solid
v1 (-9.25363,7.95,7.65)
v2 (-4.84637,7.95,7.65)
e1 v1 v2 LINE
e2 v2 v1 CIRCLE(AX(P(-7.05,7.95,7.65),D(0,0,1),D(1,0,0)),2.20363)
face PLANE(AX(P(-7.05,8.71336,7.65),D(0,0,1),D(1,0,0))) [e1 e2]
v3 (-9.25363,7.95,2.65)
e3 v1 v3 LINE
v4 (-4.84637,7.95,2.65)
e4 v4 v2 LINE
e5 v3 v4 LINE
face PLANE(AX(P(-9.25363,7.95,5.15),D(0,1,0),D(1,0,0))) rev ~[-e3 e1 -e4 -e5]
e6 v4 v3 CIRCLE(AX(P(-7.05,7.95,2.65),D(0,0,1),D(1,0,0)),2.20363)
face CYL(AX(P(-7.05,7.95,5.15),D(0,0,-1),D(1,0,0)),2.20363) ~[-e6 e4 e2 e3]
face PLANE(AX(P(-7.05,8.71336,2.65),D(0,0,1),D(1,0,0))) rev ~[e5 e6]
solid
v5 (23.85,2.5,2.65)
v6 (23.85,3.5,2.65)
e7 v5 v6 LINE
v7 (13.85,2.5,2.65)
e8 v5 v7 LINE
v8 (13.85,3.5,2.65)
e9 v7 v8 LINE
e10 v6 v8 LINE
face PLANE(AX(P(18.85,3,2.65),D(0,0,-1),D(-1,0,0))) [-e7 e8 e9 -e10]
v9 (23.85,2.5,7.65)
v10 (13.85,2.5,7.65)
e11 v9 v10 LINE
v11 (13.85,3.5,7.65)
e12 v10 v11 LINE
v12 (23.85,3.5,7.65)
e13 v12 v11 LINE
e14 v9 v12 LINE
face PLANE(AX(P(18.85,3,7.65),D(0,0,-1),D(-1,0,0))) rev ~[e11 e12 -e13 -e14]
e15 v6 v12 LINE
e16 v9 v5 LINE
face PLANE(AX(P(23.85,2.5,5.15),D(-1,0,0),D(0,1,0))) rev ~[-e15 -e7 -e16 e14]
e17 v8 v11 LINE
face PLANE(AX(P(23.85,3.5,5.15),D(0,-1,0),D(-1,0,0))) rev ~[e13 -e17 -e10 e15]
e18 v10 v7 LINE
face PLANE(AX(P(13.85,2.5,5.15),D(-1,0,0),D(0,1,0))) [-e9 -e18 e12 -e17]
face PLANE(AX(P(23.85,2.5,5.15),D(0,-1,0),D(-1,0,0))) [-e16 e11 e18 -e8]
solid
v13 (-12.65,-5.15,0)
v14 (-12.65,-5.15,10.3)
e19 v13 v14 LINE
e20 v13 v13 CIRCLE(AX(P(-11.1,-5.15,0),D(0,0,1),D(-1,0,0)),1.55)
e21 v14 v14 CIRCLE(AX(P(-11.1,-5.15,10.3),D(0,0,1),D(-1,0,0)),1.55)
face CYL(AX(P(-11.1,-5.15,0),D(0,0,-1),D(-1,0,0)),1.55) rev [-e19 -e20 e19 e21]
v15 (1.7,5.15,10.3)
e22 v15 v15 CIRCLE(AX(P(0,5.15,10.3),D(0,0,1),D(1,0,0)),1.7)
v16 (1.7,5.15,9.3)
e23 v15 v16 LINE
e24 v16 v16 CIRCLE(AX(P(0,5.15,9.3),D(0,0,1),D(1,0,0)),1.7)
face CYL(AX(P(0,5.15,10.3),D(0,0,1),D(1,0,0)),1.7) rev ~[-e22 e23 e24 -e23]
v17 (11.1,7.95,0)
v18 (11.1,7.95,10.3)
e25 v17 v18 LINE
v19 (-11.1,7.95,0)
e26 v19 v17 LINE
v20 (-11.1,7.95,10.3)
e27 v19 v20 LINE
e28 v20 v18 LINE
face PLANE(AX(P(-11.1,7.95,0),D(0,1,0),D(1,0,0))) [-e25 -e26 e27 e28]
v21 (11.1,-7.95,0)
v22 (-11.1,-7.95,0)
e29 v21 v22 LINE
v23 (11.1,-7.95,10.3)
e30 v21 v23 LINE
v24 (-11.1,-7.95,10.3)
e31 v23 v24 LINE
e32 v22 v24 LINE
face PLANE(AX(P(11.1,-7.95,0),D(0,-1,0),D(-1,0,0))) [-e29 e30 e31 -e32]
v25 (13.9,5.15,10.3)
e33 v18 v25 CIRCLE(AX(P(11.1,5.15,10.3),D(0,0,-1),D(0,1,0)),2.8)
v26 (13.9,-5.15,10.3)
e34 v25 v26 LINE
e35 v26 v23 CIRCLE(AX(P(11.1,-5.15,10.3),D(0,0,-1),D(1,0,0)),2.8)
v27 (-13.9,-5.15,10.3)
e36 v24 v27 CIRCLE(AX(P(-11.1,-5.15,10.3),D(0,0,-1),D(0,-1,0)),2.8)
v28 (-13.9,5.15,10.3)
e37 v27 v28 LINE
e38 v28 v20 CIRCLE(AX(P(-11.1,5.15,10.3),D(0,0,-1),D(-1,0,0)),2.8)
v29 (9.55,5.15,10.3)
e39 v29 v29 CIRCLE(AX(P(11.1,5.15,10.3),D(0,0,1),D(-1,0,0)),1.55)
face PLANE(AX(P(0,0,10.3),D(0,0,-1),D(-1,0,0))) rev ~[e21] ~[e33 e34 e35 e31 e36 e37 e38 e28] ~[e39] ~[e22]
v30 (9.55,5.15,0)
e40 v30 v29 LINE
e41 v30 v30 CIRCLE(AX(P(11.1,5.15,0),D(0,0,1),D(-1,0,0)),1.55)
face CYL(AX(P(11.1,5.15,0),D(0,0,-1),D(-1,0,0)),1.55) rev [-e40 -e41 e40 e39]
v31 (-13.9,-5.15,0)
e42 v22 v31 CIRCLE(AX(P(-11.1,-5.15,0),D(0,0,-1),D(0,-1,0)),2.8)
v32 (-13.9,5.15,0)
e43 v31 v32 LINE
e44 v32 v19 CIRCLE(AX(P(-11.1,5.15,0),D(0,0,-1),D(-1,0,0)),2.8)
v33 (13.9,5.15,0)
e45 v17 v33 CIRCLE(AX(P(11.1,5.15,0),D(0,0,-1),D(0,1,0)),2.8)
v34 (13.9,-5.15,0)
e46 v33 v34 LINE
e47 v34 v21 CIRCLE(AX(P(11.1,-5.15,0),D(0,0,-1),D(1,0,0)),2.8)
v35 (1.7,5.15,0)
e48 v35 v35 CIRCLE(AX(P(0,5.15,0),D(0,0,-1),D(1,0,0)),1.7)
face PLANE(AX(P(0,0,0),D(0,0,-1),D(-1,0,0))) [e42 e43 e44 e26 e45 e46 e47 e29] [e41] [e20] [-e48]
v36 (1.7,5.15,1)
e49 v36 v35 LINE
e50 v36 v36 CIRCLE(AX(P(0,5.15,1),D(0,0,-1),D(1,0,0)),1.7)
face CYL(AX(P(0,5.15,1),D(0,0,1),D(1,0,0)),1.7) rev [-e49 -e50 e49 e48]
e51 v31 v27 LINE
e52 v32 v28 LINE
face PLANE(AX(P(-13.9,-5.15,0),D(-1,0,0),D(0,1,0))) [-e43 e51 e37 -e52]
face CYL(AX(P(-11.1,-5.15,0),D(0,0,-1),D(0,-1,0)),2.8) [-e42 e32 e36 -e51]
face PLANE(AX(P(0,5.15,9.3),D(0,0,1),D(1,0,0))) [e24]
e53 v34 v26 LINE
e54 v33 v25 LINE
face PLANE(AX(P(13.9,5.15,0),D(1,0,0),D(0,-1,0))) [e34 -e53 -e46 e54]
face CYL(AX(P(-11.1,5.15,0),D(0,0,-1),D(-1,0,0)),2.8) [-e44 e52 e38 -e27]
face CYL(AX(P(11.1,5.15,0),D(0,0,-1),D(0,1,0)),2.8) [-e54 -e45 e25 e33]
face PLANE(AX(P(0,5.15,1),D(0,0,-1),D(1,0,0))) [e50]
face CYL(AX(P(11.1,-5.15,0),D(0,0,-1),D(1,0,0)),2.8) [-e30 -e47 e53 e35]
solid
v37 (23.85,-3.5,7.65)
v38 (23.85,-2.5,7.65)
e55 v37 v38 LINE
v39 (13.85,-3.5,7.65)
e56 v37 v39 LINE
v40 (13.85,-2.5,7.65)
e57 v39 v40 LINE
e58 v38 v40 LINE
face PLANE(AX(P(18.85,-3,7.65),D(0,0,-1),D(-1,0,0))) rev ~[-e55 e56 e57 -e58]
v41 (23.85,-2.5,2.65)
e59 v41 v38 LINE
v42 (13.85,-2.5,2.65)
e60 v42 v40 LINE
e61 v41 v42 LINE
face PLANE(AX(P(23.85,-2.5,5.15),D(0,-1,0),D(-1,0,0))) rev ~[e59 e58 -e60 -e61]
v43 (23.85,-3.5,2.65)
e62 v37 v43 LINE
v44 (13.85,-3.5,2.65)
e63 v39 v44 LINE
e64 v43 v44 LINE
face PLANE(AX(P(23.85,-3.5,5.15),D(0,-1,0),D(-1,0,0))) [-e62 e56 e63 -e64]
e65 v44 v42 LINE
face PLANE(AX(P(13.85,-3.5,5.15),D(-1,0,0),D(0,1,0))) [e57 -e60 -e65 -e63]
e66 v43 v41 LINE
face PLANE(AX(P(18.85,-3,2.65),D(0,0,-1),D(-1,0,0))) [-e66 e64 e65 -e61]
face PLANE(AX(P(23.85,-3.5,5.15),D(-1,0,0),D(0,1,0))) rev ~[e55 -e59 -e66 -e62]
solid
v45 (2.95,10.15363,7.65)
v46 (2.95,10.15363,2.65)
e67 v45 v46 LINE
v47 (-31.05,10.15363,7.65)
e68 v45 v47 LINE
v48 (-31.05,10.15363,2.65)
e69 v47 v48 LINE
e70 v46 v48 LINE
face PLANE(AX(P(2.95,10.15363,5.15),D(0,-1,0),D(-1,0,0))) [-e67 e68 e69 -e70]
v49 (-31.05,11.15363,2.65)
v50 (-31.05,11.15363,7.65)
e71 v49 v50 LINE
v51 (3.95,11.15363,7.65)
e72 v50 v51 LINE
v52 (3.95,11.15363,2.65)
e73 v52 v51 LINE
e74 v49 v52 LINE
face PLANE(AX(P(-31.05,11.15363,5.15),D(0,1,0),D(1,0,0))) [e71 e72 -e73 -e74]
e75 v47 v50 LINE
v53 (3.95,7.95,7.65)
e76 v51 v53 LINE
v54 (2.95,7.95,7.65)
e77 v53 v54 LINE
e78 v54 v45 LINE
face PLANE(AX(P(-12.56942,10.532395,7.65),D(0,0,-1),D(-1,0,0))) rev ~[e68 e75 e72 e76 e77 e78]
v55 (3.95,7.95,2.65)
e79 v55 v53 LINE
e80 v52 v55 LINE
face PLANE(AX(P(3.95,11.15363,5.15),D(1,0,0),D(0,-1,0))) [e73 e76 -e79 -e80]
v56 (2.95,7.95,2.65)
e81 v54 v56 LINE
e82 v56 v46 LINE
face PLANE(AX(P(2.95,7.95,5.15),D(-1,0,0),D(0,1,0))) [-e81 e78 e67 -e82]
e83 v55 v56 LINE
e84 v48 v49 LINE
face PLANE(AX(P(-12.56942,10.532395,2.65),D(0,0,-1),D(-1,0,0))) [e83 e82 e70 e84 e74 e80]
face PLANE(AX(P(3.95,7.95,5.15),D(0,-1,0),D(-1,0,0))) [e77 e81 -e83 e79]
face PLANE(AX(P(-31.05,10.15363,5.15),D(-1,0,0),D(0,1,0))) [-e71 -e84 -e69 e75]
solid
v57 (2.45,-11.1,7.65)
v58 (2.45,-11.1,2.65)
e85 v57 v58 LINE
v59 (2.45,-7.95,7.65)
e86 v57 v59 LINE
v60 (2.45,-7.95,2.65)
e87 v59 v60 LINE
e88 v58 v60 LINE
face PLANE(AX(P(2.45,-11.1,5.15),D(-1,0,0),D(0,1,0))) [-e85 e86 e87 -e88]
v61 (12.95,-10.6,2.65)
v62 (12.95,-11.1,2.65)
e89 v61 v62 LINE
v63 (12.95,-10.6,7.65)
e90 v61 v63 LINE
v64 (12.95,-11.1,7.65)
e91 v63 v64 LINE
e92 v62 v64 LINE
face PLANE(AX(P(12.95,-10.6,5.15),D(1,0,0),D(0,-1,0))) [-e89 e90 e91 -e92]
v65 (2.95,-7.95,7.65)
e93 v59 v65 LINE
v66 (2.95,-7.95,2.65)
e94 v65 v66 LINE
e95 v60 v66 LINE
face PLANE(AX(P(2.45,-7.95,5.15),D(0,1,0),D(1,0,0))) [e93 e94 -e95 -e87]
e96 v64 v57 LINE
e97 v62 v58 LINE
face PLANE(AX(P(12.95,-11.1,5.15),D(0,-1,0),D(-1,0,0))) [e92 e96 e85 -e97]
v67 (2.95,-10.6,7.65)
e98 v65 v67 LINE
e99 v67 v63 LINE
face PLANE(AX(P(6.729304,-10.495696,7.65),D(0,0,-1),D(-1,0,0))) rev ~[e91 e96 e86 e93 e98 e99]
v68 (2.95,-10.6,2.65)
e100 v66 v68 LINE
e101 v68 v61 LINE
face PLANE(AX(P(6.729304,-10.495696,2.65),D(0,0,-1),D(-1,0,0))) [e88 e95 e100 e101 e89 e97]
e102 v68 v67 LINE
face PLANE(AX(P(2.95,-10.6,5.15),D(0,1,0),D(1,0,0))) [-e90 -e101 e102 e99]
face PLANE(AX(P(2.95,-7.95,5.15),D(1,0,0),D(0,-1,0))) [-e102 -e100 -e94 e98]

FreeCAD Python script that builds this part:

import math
import FreeCAD as App
import Part
import Sketcher
from FreeCAD import Vector
Q = App.Units.Quantity


def add_polygon(sketch, points):
    """Adds a closed chain of lines whose ends are joined by coincident constraints."""
    first, n = sketch.GeometryCount, len(points)
    for a, b in zip(points, points[1:] + points[:1]):
        sketch.addGeometry(Part.LineSegment(App.Vector(*a, 0), App.Vector(*b, 0)), False)
    for i in range(n):
        sketch.addConstraint(Sketcher.Constraint("Coincident", first + i, 2, first + (i + 1) % n, 1))

doc = App.newDocument("Part")
body = doc.addObject("PartDesign::Body", "Body")

sketch1 = body.newObject("Sketcher::SketchObject", "Sketch")
sketch1.AttachmentSupport = (doc.getObject("XY_Plane"), [""])
sketch1.MapMode = "FlatFace"
sketch1.addGeometry(Part.LineSegment(Vector(11.1, 7.95, 0), Vector(-11.1, 7.95, 0)), False)
sketch1.addGeometry(Part.ArcOfCircle(Part.Circle(Vector(-11.1, 5.15, 0), Vector(0, 0, 1), 2.8), math.radians(90), math.radians(180)), False)
sketch1.addGeometry(Part.LineSegment(Vector(-13.9, 5.15, 0), Vector(-13.9, -5.15, 0)), False)
sketch1.addGeometry(Part.ArcOfCircle(Part.Circle(Vector(-11.1, -5.15, 0), Vector(0, 0, 1), 2.8), math.radians(-180), math.radians(-90)), False)
sketch1.addGeometry(Part.LineSegment(Vector(-11.1, -7.95, 0), Vector(11.1, -7.95, 0)), False)
sketch1.addGeometry(Part.ArcOfCircle(Part.Circle(Vector(11.1, -5.15, 0), Vector(0, 0, 1), 2.8), math.radians(-90), math.radians(0)), False)
sketch1.addGeometry(Part.LineSegment(Vector(13.9, -5.15, 0), Vector(13.9, 5.15, 0)), False)
sketch1.addGeometry(Part.ArcOfCircle(Part.Circle(Vector(11.1, 5.15, 0), Vector(0, 0, 1), 2.8), math.radians(0), math.radians(90)), False)
sketch1.addGeometry(Part.Circle(Vector(-11.1, -5.15, 0), Vector(0, 0, 1), 1.55), False)
sketch1.addGeometry(Part.Circle(Vector(11.1, 5.15, 0), Vector(0, 0, 1), 1.55), False)
sketch1.addConstraint(Sketcher.Constraint("Tangent", 0, 2, 1, 1))
sketch1.addConstraint(Sketcher.Constraint("Tangent", 1, 2, 2, 1))
sketch1.addConstraint(Sketcher.Constraint("Tangent", 2, 2, 3, 1))
sketch1.addConstraint(Sketcher.Constraint("Tangent", 3, 2, 4, 1))
sketch1.addConstraint(Sketcher.Constraint("Tangent", 4, 2, 5, 1))
sketch1.addConstraint(Sketcher.Constraint("Tangent", 5, 2, 6, 1))
sketch1.addConstraint(Sketcher.Constraint("Tangent", 6, 2, 7, 1))
sketch1.addConstraint(Sketcher.Constraint("Tangent", 7, 2, 0, 1))
sketch1.addConstraint(Sketcher.Constraint("Horizontal", 0))
sketch1.addConstraint(Sketcher.Constraint("Vertical", 2))
sketch1.addConstraint(Sketcher.Constraint("Horizontal", 4))
sketch1.addConstraint(Sketcher.Constraint("Vertical", 6))
sketch1.addConstraint(Sketcher.Constraint("Coincident", 8, 3, 3, 3))
sketch1.addConstraint(Sketcher.Constraint("Coincident", 9, 3, 7, 3))
sketch1.addConstraint(Sketcher.Constraint("Equal", 1, 3))
sketch1.addConstraint(Sketcher.Constraint("Equal", 3, 5))
sketch1.addConstraint(Sketcher.Constraint("Equal", 5, 7))
sketch1.addConstraint(Sketcher.Constraint("Equal", 8, 9))
sketch1.addConstraint(Sketcher.Constraint("Symmetric", 1, 3, 5, 3, -1, 1))
sketch1.addConstraint(Sketcher.Constraint("Diameter", 8, Q("3.1 mm")))
sketch1.addConstraint(Sketcher.Constraint("Radius", 1, Q("2.8 mm")))
sketch1.addConstraint(Sketcher.Constraint("DistanceX", 0, 2, 0, 1, Q("22.2 mm")))
sketch1.addConstraint(Sketcher.Constraint("DistanceY", 2, 2, 2, 1, Q("10.3 mm")))
pad1 = body.newObject("PartDesign::Pad", "Pad")
pad1.Profile = sketch1
pad1.Length = 10.3

sketch2 = body.newObject("Sketcher::SketchObject", "Sketch001")
sketch2.AttachmentSupport = (doc.getObject("XY_Plane"), [""])
sketch2.MapMode = "FlatFace"
sketch2.AttachmentOffset = App.Placement(Vector(0, 0, 10.3), App.Rotation())
sketch2.addGeometry(Part.Circle(Vector(0, 5.15, 0), Vector(0, 0, 1), 1.7), False)
sketch2.addConstraint(Sketcher.Constraint("PointOnObject", 0, 3, -2))
sketch2.addConstraint(Sketcher.Constraint("Diameter", 0, Q("3.4 mm")))
sketch2.addConstraint(Sketcher.Constraint("DistanceY", -1, 1, 0, 3, Q("5.15 mm")))
pocket1 = body.newObject("PartDesign::Pocket", "Pocket")
pocket1.Profile = sketch2
pocket1.Length = 1

sketch3 = body.newObject("Sketcher::SketchObject", "Sketch002")
sketch3.AttachmentSupport = (doc.getObject("XY_Plane"), [""])
sketch3.MapMode = "FlatFace"
sketch3.AttachmentOffset = App.Placement(Vector(0, 0, 1), App.Rotation())
sketch3.addGeometry(Part.Circle(Vector(0, 5.15, 0), Vector(0, 0, 1), 1.7), False)
sketch3.addConstraint(Sketcher.Constraint("PointOnObject", 0, 3, -2))
sketch3.addConstraint(Sketcher.Constraint("Diameter", 0, Q("3.4 mm")))
sketch3.addConstraint(Sketcher.Constraint("DistanceY", -1, 1, 0, 3, Q("5.15 mm")))
pocket2 = body.newObject("PartDesign::Pocket", "Pocket001")
pocket2.Profile = sketch3
pocket2.Length = 1
body2 = doc.addObject("PartDesign::Body", "Body001")

sketch4 = body2.newObject("Sketcher::SketchObject", "Sketch003")
sketch4.AttachmentSupport = (doc.getObject("XY_Plane001"), [""])
sketch4.MapMode = "FlatFace"
sketch4.AttachmentOffset = App.Placement(Vector(0, 0, 5.15), App.Rotation())
add_polygon(sketch4, [(3.95, 7.95), (2.95, 7.95), (2.95, 10.15363), (-31.05, 10.15363), (-31.05, 11.15363), (3.95, 11.15363)])
sketch4.addConstraint(Sketcher.Constraint("Horizontal", 0))
sketch4.addConstraint(Sketcher.Constraint("Vertical", 1))
sketch4.addConstraint(Sketcher.Constraint("Horizontal", 2))
sketch4.addConstraint(Sketcher.Constraint("Vertical", 3))
sketch4.addConstraint(Sketcher.Constraint("Horizontal", 4))
sketch4.addConstraint(Sketcher.Constraint("Vertical", 5))
sketch4.addConstraint(Sketcher.Constraint("Equal", 0, 3))
sketch4.addConstraint(Sketcher.Constraint("DistanceX", 0, 2, 0, 1, Q("1 mm")))
sketch4.addConstraint(Sketcher.Constraint("DistanceX", 2, 2, 2, 1, Q("34 mm")))
sketch4.addConstraint(Sketcher.Constraint("DistanceX", -1, 1, 0, 2, Q("2.95 mm")))
sketch4.addConstraint(Sketcher.Constraint("DistanceY", -1, 1, 0, 2, Q("7.95 mm")))
sketch4.addConstraint(Sketcher.Constraint("DistanceY", 1, 1, 1, 2, Q("2.20363 mm")))
pad2 = body2.newObject("PartDesign::Pad", "Pad001")
pad2.Profile = sketch4
pad2.Length = 5
pad2.Midplane = True
body3 = doc.addObject("PartDesign::Body", "Body002")

sketch5 = body3.newObject("Sketcher::SketchObject", "Sketch004")
sketch5.AttachmentSupport = (doc.getObject("XY_Plane002"), [""])
sketch5.MapMode = "FlatFace"
sketch5.AttachmentOffset = App.Placement(Vector(0, 0, 5.15), App.Rotation())
sketch5.addGeometry(Part.LineSegment(Vector(-4.84637, 7.95, 0), Vector(-9.25363, 7.95, 0)), False)
sketch5.addGeometry(Part.ArcOfCircle(Part.Circle(Vector(-7.05, 7.95, 0), Vector(0, 0, 1), 2.20363), math.radians(0), math.radians(180)), False)
sketch5.addConstraint(Sketcher.Constraint("Coincident", 0, 1, 1, 1))
sketch5.addConstraint(Sketcher.Constraint("Coincident", 1, 2, 0, 2))
sketch5.addConstraint(Sketcher.Constraint("Horizontal", 0))
sketch5.addConstraint(Sketcher.Constraint("Horizontal", 1, 3, 0, 1))
sketch5.addConstraint(Sketcher.Constraint("DistanceX", 1, 3, -1, 1, Q("7.05 mm")))
sketch5.addConstraint(Sketcher.Constraint("DistanceY", -1, 1, 1, 3, Q("7.95 mm")))
sketch5.addConstraint(Sketcher.Constraint("Radius", 1, Q("2.20363 mm")))
pad3 = body3.newObject("PartDesign::Pad", "Pad002")
pad3.Profile = sketch5
pad3.Length = 5
pad3.Midplane = True
body4 = doc.addObject("PartDesign::Body", "Body003")

sketch6 = body4.newObject("Sketcher::SketchObject", "Sketch005")
sketch6.AttachmentSupport = (doc.getObject("XY_Plane003"), [""])
sketch6.MapMode = "FlatFace"
sketch6.AttachmentOffset = App.Placement(Vector(0, 0, 5.15), App.Rotation())
add_polygon(sketch6, [(23.85, 3.5), (23.85, 2.5), (13.85, 2.5), (13.85, 3.5)])
sketch6.addConstraint(Sketcher.Constraint("Vertical", 0))
sketch6.addConstraint(Sketcher.Constraint("Horizontal", 1))
sketch6.addConstraint(Sketcher.Constraint("Vertical", 2))
sketch6.addConstraint(Sketcher.Constraint("Horizontal", 3))
sketch6.addConstraint(Sketcher.Constraint("DistanceX", 1, 2, 1, 1, Q("10 mm")))
sketch6.addConstraint(Sketcher.Constraint("DistanceY", 0, 2, 0, 1, Q("1 mm")))
sketch6.addConstraint(Sketcher.Constraint("DistanceY", -1, 1, 0, 2, Q("2.5 mm")))
sketch6.addConstraint(Sketcher.Constraint("DistanceX", -1, 1, 0, 2, Q("23.85 mm")))
pad4 = body4.newObject("PartDesign::Pad", "Pad003")
pad4.Profile = sketch6
pad4.Length = 5
pad4.Midplane = True
body5 = doc.addObject("PartDesign::Body", "Body004")

sketch7 = body5.newObject("Sketcher::SketchObject", "Sketch006")
sketch7.AttachmentSupport = (doc.getObject("XY_Plane004"), [""])
sketch7.MapMode = "FlatFace"
sketch7.AttachmentOffset = App.Placement(Vector(0, 0, 5.15), App.Rotation())
add_polygon(sketch7, [(23.85, -2.5), (23.85, -3.5), (13.85, -3.5), (13.85, -2.5)])
sketch7.addConstraint(Sketcher.Constraint("Vertical", 0))
sketch7.addConstraint(Sketcher.Constraint("Horizontal", 1))
sketch7.addConstraint(Sketcher.Constraint("Vertical", 2))
sketch7.addConstraint(Sketcher.Constraint("Horizontal", 3))
sketch7.addConstraint(Sketcher.Constraint("DistanceX", 1, 2, 1, 1, Q("10 mm")))
sketch7.addConstraint(Sketcher.Constraint("DistanceY", 0, 2, 0, 1, Q("1 mm")))
sketch7.addConstraint(Sketcher.Constraint("DistanceY", 0, 2, -1, 1, Q("3.5 mm")))
sketch7.addConstraint(Sketcher.Constraint("DistanceX", -1, 1, 0, 2, Q("23.85 mm")))
pad5 = body5.newObject("PartDesign::Pad", "Pad004")
pad5.Profile = sketch7
pad5.Length = 5
pad5.Midplane = True
body6 = doc.addObject("PartDesign::Body", "Body005")

sketch8 = body6.newObject("Sketcher::SketchObject", "Sketch007")
sketch8.AttachmentSupport = (doc.getObject("XY_Plane005"), [""])
sketch8.MapMode = "FlatFace"
sketch8.AttachmentOffset = App.Placement(Vector(0, 0, 5.15), App.Rotation())
add_polygon(sketch8, [(12.95, -11.1), (2.45, -11.1), (2.45, -7.95), (2.95, -7.95), (2.95, -10.6), (12.95, -10.6)])
sketch8.addConstraint(Sketcher.Constraint("Horizontal", 0))
sketch8.addConstraint(Sketcher.Constraint("Vertical", 1))
sketch8.addConstraint(Sketcher.Constraint("Horizontal", 2))
sketch8.addConstraint(Sketcher.Constraint("Vertical", 3))
sketch8.addConstraint(Sketcher.Constraint("Horizontal", 4))
sketch8.addConstraint(Sketcher.Constraint("Vertical", 5))
sketch8.addConstraint(Sketcher.Constraint("Equal", 2, 5))
sketch8.addConstraint(Sketcher.Constraint("DistanceX", 4, 1, 4, 2, Q("10 mm")))
sketch8.addConstraint(Sketcher.Constraint("DistanceX", 0, 2, 0, 1, Q("10.5 mm")))
sketch8.addConstraint(Sketcher.Constraint("DistanceY", 1, 1, 1, 2, Q("3.15 mm")))
sketch8.addConstraint(Sketcher.Constraint("DistanceY", 0, 2, -1, 1, Q("11.1 mm")))
sketch8.addConstraint(Sketcher.Constraint("DistanceX", -1, 1, 0, 2, Q("2.45 mm")))
pad6 = body6.newObject("PartDesign::Pad", "Pad005")
pad6.Profile = sketch8
pad6.Length = 5
pad6.Midplane = True

doc.recompute()
